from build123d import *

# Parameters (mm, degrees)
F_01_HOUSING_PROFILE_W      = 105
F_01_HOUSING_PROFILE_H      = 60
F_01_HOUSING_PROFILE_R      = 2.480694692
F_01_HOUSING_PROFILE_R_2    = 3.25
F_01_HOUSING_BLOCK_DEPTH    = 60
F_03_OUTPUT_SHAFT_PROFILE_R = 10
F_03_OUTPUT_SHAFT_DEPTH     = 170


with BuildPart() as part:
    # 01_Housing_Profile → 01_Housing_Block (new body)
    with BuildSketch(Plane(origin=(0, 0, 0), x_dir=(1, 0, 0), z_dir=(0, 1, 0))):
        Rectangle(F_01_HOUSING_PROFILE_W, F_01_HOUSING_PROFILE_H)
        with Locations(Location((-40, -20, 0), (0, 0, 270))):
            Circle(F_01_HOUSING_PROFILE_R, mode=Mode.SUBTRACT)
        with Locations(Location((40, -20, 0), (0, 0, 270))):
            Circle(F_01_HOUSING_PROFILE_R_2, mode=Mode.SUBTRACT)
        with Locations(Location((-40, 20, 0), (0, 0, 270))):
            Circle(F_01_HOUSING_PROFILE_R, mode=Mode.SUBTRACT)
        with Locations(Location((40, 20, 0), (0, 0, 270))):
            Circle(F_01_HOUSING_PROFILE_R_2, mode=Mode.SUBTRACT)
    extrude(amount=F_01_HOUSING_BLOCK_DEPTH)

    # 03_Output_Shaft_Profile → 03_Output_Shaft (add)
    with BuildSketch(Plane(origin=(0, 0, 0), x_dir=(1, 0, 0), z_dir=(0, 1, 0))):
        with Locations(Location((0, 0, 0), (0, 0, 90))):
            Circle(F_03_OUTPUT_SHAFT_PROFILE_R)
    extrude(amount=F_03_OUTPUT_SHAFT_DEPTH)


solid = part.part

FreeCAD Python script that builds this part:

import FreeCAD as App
import Part
import Sketcher
Q = App.Units.Quantity


def add_polygon(sketch, points):
    """Adds a closed chain of lines whose ends are joined by coincident constraints."""
    first, n = sketch.GeometryCount, len(points)
    for a, b in zip(points, points[1:] + points[:1]):
        sketch.addGeometry(Part.LineSegment(App.Vector(*a, 0), App.Vector(*b, 0)), False)
    for i in range(n):
        sketch.addConstraint(Sketcher.Constraint("Coincident", first + i, 2, first + (i + 1) % n, 1))

doc = App.newDocument("Part")
body = doc.addObject("PartDesign::Body", "Body")

sketch1 = body.newObject("Sketcher::SketchObject", "Sketch")
sketch1.AttachmentSupport = (doc.getObject("XZ_Plane"), [""])
sketch1.MapMode = "FlatFace"
add_polygon(sketch1, [(-52.5, -30), (-52.5, 30), (52.5, 30), (52.5, -30)])
sketch1.addGeometry(Part.Circle(App.Vector(-40, 20, 0), App.Vector(0, 0, 1), 2.5), False)
sketch1.addGeometry(Part.Circle(App.Vector(40, 20, 0), App.Vector(0, 0, 1), 3.2), False)
sketch1.addGeometry(Part.Circle(App.Vector(-40, -20, 0), App.Vector(0, 0, 1), 2.5), False)
sketch1.addGeometry(Part.Circle(App.Vector(40, -20, 0), App.Vector(0, 0, 1), 3.2), False)
sketch1.addConstraint([
    Sketcher.Constraint("Vertical", 0),
    Sketcher.Constraint("Horizontal", 1),
    Sketcher.Constraint("Vertical", 2),
    Sketcher.Constraint("Horizontal", 3),
    Sketcher.Constraint("Equal", 4, 6),
    Sketcher.Constraint("Equal", 5, 7),
    Sketcher.Constraint("Symmetric", 5, 3, 6, 3, -1, 1),
    Sketcher.Constraint("Symmetric", 4, 3, 7, 3, -1, 1),
    Sketcher.Constraint("Symmetric", 0, 2, 2, 2, -1, 1),
    Sketcher.Constraint("Symmetric", 4, 3, 5, 3, -2),
    Sketcher.Constraint("Diameter", 5, Q("6.5 mm")),
    Sketcher.Constraint("DistanceX", 1, 1, 1, 2, Q("105 mm")),
    Sketcher.Constraint("DistanceY", 0, 1, 0, 2, Q("60 mm")),
    Sketcher.Constraint("DistanceX", 4, 3, -1, 1, Q("40 mm")),
    Sketcher.Constraint("DistanceY", -1, 1, 4, 3, Q("20 mm")),
    Sketcher.Constraint("Diameter", 4, Q("4.961389 mm")),
])
pad1 = body.newObject("PartDesign::Pad", "Pad")
pad1.Profile = sketch1
pad1.Length = 60
pad1.Reversed = True

sketch2 = body.newObject("Sketcher::SketchObject", "Sketch001")
sketch2.AttachmentSupport = (doc.getObject("XZ_Plane"), [""])
sketch2.MapMode = "FlatFace"
sketch2.addGeometry(Part.Circle(App.Vector(0, 0, 0), App.Vector(0, 0, 1), 10), False)
sketch2.addConstraint([
    Sketcher.Constraint("Coincident", 0, 3, -1, 1),
    Sketcher.Constraint("Diameter", 0, Q("20 mm")),
])
pad2 = body.newObject("PartDesign::Pad", "Pad001")
pad2.Profile = sketch2
pad2.Length = 170
pad2.Reversed = True

doc.recompute()
